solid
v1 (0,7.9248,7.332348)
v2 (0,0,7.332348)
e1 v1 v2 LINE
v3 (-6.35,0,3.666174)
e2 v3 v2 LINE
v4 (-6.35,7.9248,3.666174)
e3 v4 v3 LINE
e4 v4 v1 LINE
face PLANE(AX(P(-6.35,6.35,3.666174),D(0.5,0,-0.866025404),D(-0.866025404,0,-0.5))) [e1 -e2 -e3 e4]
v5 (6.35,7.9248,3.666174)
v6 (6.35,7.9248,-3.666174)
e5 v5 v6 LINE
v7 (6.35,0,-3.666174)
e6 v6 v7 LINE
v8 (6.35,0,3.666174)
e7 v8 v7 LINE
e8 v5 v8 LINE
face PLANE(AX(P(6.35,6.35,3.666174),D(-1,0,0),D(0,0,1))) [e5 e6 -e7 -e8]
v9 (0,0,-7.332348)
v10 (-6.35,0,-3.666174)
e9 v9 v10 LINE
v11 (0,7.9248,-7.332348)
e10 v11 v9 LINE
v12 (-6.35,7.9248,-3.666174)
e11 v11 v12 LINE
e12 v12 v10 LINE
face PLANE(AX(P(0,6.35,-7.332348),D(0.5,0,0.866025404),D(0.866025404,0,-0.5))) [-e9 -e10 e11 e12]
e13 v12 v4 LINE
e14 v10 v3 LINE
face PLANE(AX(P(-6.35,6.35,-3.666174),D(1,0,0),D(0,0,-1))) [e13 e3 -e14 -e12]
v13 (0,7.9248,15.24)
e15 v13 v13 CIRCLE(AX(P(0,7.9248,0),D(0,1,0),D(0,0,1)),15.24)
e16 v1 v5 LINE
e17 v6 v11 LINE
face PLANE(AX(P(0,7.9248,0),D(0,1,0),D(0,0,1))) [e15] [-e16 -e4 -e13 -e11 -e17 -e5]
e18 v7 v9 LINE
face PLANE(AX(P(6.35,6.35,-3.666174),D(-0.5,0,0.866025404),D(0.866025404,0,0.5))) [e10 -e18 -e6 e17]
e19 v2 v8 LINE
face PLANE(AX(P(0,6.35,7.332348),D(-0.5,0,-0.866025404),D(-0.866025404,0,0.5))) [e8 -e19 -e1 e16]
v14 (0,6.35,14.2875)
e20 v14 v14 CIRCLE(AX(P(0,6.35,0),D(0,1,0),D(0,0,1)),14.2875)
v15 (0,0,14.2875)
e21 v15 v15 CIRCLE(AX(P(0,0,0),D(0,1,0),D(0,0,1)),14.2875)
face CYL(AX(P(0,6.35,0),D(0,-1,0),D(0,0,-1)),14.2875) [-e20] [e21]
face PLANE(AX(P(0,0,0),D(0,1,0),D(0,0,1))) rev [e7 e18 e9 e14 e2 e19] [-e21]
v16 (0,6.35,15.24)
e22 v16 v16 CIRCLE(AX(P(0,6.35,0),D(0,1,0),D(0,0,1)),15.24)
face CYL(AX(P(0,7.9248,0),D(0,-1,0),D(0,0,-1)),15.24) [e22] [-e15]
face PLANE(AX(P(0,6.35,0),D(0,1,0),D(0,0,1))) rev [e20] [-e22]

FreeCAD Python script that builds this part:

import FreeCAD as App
import Part
import Sketcher
from FreeCAD import Vector
Q = App.Units.Quantity

doc = App.newDocument("Part")
body = doc.addObject("PartDesign::Body", "Body")

sketch1 = body.newObject("Sketcher::SketchObject", "Sketch")
sketch1.AttachmentSupport = (doc.getObject("XZ_Plane"), [""])
sketch1.MapMode = "FlatFace"
sketch1.addGeometry([
    Part.Circle(Vector(0, 0, 0), Vector(0, 0, 1), 14),
    Part.LineSegment(Vector(6, 4, 0), Vector(0, 7, 0)),
    Part.LineSegment(Vector(0, 7, 0), Vector(-6, 4, 0)),
    Part.LineSegment(Vector(-6, 4, 0), Vector(-6, -4, 0)),
    Part.LineSegment(Vector(-6, -4, 0), Vector(0, -7, 0)),
    Part.LineSegment(Vector(0, -7, 0), Vector(6, -4, 0)),
    Part.LineSegment(Vector(6, -4, 0), Vector(6, 4, 0)),
], False)
sketch1.addConstraint([
    Sketcher.Constraint("Coincident", 1, 2, 2, 1),
    Sketcher.Constraint("Coincident", 2, 2, 3, 1),
    Sketcher.Constraint("Coincident", 3, 2, 4, 1),
    Sketcher.Constraint("Coincident", 4, 2, 5, 1),
    Sketcher.Constraint("Coincident", 5, 2, 6, 1),
    Sketcher.Constraint("Coincident", 6, 2, 1, 1),
    Sketcher.Constraint("Vertical", 3),
    Sketcher.Constraint("Vertical", 6),
    Sketcher.Constraint("Coincident", 0, 3, -1, 1),
    Sketcher.Constraint("Symmetric", 1, 2, 4, 2, -1, 1),
    Sketcher.Constraint("Symmetric", 2, 2, 5, 2, -1, 1),
    Sketcher.Constraint("PointOnObject", 1, 2, -2),
    Sketcher.Constraint("Parallel", 1, 4),
    Sketcher.Constraint("Horizontal", 3, 2, 5, 2),
    Sketcher.Constraint("Diameter", 0, Q("1.125 in")),
    Sketcher.Constraint("Angle", 1, Q("150 deg")),
    Sketcher.Constraint("DistanceX", 3, 2, 5, 2, Q("0.5 in")),
    Sketcher.Constraint("DistanceY", 3, 2, 3, 1, 7.332348),
])
pad1 = body.newObject("PartDesign::Pad", "Pad")
pad1.Profile = sketch1
pad1.Length = Q("0.25 in")
pad1.Reversed = True

sketch2 = body.newObject("Sketcher::SketchObject", "Sketch001")
sketch2.AttachmentSupport = (doc.getObject("XZ_Plane"), [""])
sketch2.MapMode = "FlatFace"
sketch2.AttachmentOffset = App.Placement(Vector(0, 0, -0.25 * 25.4), App.Rotation())
sketch2.addGeometry([
    Part.Circle(Vector(0, 0, 0), Vector(0, 0, 1), 15),
    Part.LineSegment(Vector(-6, -4, 0), Vector(0, -7, 0)),
    Part.LineSegment(Vector(0, -7, 0), Vector(6, -4, 0)),
    Part.LineSegment(Vector(6, -4, 0), Vector(6, 4, 0)),
    Part.LineSegment(Vector(6, 4, 0), Vector(0, 7, 0)),
    Part.LineSegment(Vector(0, 7, 0), Vector(-6, 4, 0)),
    Part.LineSegment(Vector(-6, 4, 0), Vector(-6, -4, 0)),
], False)
sketch2.addConstraint([
    Sketcher.Constraint("Coincident", 1, 2, 2, 1),
    Sketcher.Constraint("Coincident", 2, 2, 3, 1),
    Sketcher.Constraint("Coincident", 3, 2, 4, 1),
    Sketcher.Constraint("Coincident", 4, 2, 5, 1),
    Sketcher.Constraint("Coincident", 5, 2, 6, 1),
    Sketcher.Constraint("Coincident", 6, 2, 1, 1),
    Sketcher.Constraint("Vertical", 3),
    Sketcher.Constraint("Vertical", 6),
    Sketcher.Constraint("Coincident", 0, 3, -1, 1),
    Sketcher.Constraint("Symmetric", 1, 2, 4, 2, -1, 1),
    Sketcher.Constraint("Symmetric", 2, 2, 5, 2, -1, 1),
    Sketcher.Constraint("PointOnObject", 1, 2, -2),
    Sketcher.Constraint("Parallel", 1, 4),
    Sketcher.Constraint("Horizontal", 3, 2, 5, 2),
    Sketcher.Constraint("Diameter", 0, Q("1.2 in")),
    Sketcher.Constraint("Angle", 1, Q("-30 deg")),
    Sketcher.Constraint("DistanceX", 5, 2, 3, 2, Q("0.5 in")),
    Sketcher.Constraint("DistanceY", 3, 1, 3, 2, 7.332348),
])
pad2 = body.newObject("PartDesign::Pad", "Pad001")
pad2.Profile = sketch2
pad2.Length = Q("0.062 in")
pad2.Reversed = True

doc.recompute()
